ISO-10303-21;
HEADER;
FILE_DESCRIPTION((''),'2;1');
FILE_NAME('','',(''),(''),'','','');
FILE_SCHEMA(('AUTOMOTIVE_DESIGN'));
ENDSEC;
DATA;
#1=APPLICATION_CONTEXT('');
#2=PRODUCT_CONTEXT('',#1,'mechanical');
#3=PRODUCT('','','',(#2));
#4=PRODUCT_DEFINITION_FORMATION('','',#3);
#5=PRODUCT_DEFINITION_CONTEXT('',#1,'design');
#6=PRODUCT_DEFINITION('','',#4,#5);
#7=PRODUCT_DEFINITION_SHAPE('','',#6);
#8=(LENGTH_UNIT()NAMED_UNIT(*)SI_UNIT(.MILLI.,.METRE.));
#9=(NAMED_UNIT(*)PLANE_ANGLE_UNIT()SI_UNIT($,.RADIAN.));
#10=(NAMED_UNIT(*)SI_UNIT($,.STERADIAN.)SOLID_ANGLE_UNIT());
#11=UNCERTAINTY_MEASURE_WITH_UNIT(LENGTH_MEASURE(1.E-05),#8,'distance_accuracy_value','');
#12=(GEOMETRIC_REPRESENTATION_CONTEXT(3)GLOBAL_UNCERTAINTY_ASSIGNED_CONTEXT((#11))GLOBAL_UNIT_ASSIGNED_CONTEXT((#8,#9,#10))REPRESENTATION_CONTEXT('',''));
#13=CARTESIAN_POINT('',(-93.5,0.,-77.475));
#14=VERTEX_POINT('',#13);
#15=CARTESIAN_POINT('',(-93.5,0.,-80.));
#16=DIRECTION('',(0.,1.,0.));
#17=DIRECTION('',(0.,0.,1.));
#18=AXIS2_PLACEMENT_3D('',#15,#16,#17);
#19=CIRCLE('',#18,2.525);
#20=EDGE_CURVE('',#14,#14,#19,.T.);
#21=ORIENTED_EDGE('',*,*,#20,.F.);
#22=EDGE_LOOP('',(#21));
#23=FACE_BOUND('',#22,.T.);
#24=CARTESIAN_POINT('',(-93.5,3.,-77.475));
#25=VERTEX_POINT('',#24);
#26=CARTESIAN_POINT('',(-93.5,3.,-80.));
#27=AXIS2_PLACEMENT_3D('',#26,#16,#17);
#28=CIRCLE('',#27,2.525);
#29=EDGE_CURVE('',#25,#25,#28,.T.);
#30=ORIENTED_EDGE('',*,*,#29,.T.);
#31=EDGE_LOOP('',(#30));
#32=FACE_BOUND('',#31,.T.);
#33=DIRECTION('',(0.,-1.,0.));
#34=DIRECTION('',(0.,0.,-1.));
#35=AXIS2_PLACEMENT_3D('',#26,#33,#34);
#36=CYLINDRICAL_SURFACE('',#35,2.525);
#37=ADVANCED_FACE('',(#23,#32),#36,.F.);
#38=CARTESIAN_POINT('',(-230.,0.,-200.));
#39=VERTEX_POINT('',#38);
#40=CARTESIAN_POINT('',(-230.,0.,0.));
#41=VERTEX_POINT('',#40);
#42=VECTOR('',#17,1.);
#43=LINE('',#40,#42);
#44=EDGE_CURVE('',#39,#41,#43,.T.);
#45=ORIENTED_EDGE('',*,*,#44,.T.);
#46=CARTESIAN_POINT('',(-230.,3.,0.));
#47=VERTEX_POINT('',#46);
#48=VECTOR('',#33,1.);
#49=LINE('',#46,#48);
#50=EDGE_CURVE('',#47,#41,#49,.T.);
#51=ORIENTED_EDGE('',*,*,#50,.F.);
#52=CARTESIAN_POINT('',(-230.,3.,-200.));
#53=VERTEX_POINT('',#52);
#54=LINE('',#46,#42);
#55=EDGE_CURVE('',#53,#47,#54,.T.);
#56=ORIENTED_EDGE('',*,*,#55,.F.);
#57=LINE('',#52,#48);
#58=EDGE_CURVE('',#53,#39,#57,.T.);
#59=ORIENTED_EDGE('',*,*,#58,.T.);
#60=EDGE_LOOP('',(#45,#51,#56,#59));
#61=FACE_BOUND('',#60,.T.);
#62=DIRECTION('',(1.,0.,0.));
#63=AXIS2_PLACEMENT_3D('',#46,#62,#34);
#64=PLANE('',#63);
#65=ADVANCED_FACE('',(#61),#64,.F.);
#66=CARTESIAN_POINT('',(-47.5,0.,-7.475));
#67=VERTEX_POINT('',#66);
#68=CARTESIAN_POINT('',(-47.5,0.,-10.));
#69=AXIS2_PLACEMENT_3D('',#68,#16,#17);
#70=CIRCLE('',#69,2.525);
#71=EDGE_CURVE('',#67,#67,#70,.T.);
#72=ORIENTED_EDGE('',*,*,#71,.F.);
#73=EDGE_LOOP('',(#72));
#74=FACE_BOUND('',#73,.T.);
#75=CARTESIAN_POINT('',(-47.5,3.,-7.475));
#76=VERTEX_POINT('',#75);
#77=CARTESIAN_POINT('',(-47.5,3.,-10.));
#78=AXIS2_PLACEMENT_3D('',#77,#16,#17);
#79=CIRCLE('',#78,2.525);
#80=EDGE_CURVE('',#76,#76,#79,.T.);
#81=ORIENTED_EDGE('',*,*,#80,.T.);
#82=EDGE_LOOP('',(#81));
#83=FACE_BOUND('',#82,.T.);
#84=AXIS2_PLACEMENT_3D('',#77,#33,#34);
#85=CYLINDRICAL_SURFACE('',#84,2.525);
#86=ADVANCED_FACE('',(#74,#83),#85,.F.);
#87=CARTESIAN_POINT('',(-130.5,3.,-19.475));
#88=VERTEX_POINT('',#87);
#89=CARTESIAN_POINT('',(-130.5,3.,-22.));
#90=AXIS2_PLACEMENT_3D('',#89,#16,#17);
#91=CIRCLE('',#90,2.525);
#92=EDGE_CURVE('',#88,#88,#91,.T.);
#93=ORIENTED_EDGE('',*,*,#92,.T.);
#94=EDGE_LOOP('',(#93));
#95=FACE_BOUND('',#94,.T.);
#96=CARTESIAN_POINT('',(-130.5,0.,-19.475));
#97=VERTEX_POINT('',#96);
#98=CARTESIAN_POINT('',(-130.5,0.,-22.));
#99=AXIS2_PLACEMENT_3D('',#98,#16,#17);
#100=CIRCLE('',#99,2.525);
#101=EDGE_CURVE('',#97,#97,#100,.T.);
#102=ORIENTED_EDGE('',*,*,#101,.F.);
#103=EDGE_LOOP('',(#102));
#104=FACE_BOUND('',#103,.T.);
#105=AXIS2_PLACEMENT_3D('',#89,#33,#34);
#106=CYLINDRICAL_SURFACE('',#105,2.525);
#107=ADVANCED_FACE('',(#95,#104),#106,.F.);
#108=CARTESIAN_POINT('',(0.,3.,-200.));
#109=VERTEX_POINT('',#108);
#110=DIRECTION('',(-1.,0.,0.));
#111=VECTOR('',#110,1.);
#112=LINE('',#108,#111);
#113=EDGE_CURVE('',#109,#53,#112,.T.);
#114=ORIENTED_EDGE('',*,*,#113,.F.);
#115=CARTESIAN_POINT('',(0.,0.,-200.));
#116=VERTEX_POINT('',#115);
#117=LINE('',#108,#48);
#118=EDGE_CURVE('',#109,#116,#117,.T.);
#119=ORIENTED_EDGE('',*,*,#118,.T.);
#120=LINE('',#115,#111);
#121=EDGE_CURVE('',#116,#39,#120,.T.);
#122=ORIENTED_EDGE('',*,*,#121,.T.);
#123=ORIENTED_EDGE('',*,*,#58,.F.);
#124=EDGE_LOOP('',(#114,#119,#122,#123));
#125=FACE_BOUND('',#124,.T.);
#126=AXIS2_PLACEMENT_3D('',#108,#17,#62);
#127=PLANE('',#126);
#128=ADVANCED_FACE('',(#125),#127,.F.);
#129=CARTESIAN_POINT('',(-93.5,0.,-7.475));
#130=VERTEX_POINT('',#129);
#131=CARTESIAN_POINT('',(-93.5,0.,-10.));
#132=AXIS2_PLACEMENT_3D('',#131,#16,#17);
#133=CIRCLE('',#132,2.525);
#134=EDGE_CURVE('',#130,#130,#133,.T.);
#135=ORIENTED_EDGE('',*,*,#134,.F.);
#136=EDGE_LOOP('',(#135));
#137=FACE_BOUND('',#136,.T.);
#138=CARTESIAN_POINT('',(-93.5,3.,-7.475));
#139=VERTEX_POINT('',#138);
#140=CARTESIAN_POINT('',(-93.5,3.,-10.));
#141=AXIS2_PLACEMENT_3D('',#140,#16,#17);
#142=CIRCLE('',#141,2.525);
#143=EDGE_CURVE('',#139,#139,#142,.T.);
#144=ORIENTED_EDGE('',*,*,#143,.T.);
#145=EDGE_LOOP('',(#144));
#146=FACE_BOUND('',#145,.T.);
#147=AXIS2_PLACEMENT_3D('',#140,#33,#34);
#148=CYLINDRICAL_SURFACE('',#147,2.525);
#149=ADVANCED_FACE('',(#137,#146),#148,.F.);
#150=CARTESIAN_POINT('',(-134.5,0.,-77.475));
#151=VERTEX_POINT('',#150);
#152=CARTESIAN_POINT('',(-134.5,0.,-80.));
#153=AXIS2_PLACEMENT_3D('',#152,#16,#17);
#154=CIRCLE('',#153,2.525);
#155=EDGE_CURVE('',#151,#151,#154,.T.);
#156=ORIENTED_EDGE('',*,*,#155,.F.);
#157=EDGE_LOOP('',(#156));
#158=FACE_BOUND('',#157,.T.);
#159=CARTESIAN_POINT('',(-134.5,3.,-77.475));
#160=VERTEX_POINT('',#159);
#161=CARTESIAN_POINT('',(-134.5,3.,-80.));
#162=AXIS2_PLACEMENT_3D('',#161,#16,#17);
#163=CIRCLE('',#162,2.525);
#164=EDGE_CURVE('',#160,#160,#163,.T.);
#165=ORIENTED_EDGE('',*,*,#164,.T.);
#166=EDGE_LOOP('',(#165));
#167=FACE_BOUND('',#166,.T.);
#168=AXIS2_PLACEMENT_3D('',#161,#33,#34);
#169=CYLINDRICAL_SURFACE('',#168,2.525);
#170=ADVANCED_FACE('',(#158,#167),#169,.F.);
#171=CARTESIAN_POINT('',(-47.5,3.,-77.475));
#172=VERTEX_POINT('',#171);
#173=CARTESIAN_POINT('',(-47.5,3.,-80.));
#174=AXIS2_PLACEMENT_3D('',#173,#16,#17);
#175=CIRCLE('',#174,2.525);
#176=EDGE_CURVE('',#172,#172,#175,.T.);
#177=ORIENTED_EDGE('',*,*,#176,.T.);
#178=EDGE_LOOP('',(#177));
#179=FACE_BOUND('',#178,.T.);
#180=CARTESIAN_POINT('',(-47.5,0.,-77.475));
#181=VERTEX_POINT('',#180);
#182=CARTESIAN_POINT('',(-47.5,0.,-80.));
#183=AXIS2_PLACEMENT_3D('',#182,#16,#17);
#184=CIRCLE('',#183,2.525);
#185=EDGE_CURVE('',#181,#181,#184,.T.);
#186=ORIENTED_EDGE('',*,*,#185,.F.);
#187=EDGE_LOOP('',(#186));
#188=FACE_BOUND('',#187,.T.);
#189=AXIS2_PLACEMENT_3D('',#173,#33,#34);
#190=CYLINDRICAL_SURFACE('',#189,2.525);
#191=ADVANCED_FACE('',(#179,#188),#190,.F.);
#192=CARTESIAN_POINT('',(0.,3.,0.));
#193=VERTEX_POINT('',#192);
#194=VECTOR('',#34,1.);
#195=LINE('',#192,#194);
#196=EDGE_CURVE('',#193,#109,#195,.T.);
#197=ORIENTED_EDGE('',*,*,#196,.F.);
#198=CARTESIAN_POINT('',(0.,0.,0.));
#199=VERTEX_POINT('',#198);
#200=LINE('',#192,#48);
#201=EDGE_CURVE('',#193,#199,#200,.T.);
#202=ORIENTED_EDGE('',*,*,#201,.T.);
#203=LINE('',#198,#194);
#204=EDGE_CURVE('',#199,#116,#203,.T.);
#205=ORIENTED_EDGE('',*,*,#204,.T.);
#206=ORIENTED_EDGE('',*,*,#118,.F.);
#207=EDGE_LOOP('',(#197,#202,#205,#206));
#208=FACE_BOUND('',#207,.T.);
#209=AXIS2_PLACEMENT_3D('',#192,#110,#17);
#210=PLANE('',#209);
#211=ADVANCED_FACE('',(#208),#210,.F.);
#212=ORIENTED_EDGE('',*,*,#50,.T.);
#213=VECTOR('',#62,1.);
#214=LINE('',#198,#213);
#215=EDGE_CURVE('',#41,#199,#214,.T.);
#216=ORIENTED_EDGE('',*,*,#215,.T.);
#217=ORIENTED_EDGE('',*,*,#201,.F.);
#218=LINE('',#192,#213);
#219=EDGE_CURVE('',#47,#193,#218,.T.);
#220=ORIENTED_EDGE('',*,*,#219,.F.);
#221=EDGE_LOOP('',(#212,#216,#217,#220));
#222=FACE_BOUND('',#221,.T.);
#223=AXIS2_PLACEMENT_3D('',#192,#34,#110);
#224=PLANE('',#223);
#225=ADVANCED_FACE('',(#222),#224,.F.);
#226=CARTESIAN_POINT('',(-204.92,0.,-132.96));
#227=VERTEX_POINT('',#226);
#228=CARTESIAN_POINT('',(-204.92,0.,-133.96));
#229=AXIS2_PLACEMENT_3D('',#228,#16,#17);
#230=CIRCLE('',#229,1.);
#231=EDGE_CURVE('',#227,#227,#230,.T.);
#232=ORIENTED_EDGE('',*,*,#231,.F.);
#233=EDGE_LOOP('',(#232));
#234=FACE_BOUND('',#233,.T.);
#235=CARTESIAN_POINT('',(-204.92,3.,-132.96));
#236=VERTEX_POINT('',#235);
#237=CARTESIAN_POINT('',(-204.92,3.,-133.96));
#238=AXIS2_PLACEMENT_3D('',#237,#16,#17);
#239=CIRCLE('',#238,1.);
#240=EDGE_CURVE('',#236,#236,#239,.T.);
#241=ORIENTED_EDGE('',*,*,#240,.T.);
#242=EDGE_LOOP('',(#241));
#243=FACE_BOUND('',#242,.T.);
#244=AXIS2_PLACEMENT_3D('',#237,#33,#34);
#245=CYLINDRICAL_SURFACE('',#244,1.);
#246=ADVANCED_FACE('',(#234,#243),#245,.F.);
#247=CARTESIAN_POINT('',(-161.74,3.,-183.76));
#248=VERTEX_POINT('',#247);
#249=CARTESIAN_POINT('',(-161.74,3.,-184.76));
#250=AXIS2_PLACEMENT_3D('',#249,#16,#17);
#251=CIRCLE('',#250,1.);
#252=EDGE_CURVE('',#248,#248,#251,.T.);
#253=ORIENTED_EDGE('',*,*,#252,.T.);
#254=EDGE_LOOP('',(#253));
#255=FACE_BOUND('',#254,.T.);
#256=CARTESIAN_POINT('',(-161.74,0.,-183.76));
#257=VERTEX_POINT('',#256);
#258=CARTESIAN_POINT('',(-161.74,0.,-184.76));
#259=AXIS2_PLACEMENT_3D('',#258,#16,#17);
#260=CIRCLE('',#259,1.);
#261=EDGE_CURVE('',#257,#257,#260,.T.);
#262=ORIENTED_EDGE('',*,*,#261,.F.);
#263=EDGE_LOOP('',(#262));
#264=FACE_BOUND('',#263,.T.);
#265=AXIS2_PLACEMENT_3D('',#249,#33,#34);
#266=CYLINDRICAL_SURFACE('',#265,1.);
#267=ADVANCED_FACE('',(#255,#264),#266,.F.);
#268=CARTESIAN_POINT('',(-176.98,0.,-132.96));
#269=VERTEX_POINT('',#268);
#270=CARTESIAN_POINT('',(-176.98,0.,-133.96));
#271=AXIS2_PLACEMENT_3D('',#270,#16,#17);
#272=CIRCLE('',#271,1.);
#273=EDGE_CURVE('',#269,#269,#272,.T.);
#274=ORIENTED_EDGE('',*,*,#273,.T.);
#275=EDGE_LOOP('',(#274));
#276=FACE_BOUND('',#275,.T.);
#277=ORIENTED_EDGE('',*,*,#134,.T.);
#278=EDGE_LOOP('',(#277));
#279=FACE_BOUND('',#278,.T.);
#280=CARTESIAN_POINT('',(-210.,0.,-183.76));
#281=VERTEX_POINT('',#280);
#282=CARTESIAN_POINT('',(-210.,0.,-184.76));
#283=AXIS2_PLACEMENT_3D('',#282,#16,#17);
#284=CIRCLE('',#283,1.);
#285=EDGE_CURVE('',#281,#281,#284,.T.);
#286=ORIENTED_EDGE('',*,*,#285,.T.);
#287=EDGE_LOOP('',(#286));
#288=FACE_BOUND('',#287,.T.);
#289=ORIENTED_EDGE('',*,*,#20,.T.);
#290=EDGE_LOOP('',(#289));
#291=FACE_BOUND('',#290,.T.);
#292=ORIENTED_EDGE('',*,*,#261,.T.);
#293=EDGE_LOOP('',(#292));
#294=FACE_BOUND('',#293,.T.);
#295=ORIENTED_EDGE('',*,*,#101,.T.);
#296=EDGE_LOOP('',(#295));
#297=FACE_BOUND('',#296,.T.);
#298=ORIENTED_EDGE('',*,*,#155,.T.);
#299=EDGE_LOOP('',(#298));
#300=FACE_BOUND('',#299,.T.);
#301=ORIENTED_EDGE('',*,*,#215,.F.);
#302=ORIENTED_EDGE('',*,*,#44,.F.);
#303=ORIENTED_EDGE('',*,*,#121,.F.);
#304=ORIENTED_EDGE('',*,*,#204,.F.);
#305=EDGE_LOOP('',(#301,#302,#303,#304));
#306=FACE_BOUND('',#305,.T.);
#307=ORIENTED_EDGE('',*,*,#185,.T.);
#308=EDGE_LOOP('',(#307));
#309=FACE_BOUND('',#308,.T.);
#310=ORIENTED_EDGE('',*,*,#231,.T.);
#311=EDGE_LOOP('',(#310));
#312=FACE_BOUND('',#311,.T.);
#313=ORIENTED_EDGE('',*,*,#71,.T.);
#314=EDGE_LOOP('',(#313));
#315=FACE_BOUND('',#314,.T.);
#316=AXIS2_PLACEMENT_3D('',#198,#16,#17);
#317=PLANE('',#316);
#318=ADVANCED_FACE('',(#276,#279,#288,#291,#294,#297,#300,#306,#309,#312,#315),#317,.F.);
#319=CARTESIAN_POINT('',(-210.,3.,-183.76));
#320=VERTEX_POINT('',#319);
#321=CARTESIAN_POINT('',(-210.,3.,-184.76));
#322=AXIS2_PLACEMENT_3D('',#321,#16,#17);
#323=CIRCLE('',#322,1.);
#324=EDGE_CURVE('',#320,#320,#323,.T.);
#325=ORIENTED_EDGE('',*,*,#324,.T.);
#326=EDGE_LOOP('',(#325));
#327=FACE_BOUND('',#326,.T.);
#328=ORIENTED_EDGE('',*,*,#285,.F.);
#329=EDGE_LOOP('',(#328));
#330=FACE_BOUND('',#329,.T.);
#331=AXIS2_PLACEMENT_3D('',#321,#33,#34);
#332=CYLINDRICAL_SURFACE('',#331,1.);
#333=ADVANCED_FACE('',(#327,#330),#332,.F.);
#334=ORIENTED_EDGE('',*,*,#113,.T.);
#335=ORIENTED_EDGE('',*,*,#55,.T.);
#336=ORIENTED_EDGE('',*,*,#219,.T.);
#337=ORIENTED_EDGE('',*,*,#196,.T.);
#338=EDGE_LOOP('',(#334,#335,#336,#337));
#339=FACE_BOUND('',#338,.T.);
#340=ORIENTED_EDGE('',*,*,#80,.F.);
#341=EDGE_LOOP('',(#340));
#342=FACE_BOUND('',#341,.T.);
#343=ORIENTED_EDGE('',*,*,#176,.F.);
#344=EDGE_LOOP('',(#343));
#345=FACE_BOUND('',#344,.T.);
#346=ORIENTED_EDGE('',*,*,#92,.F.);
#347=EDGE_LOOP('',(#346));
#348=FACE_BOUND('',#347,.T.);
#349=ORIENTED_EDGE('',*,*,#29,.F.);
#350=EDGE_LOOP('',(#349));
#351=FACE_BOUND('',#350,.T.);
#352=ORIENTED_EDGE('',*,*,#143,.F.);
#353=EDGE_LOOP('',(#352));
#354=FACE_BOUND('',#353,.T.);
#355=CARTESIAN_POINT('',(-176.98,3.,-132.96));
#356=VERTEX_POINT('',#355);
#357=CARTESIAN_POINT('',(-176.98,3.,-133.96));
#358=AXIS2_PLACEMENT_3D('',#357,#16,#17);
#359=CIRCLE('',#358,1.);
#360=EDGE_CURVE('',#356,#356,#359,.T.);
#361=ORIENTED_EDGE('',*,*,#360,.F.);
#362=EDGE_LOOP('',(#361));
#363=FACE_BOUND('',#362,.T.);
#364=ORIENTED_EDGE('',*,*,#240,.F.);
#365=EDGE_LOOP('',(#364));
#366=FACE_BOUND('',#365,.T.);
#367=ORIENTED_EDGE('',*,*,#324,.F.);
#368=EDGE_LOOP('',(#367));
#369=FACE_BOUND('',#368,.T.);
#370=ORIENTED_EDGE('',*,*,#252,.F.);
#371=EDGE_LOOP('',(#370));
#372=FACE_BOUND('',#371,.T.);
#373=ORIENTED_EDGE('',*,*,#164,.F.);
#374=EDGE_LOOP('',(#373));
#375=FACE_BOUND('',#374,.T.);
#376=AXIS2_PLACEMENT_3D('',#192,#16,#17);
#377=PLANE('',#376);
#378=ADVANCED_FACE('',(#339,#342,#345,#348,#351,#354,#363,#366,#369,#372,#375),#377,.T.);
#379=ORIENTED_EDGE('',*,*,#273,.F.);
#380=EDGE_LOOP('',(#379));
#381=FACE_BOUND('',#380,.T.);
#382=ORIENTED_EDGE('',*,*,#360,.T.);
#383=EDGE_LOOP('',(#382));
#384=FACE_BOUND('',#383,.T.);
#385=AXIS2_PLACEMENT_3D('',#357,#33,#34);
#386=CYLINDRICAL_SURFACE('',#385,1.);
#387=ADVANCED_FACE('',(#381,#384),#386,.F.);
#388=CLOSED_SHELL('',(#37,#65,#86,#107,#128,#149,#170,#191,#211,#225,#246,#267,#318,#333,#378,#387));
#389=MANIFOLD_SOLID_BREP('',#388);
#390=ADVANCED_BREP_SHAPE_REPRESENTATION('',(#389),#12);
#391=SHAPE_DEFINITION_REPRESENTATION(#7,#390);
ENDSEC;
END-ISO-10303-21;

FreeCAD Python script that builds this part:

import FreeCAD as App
import Part
import Sketcher
from FreeCAD import Vector


def add_polygon(sketch, points):
    """Adds a closed chain of lines whose ends are joined by coincident constraints."""
    first, n = sketch.GeometryCount, len(points)
    for a, b in zip(points, points[1:] + points[:1]):
        sketch.addGeometry(Part.LineSegment(App.Vector(*a, 0), App.Vector(*b, 0)), False)
    for i in range(n):
        sketch.addConstraint(Sketcher.Constraint("Coincident", first + i, 2, first + (i + 1) % n, 1))

doc = App.newDocument("Part")
body = doc.addObject("PartDesign::Body", "Body")

sketch1 = body.newObject("Sketcher::SketchObject", "Sketch")
sketch1.AttachmentSupport = (doc.getObject("XZ_Plane"), [""])
sketch1.MapMode = "FlatFace"
add_polygon(sketch1, [(-230, -200), (-230, 0), (0, 0), (0, -200)])
sketch1.addGeometry(Part.Circle(Vector(-130.5, -22, 0), Vector(0, 0, 1), 2.5), False)
sketch1.addGeometry(Part.Circle(Vector(-134.5, -80, 0), Vector(0, 0, 1), 2.5), False)
sketch1.addGeometry(Part.Circle(Vector(-93.5, -10, 0), Vector(0, 0, 1), 2.5), False)
sketch1.addGeometry(Part.Circle(Vector(-47.5, -10, 0), Vector(0, 0, 1), 2.5), False)
sketch1.addGeometry(Part.Circle(Vector(-93.5, -80, 0), Vector(0, 0, 1), 2.5), False)
sketch1.addGeometry(Part.Circle(Vector(-47.5, -80, 0), Vector(0, 0, 1), 2.5), False)
sketch1.addGeometry(Part.Circle(Vector(-204.9, -134, 0), Vector(0, 0, 1), 1), False)
sketch1.addGeometry(Part.Circle(Vector(-177, -134, 0), Vector(0, 0, 1), 1), False)
sketch1.addGeometry(Part.Circle(Vector(-210, -184.8, 0), Vector(0, 0, 1), 1), False)
sketch1.addGeometry(Part.Circle(Vector(-161.7, -184.8, 0), Vector(0, 0, 1), 1), False)
sketch1.addConstraint([
    Sketcher.Constraint("Vertical", 0),
    Sketcher.Constraint("Horizontal", 1),
    Sketcher.Constraint("Vertical", 2),
    Sketcher.Constraint("Horizontal", 3),
    Sketcher.Constraint("Coincident", 1, 2, -1, 1),
    Sketcher.Constraint("Equal", 4, 5),
    Sketcher.Constraint("Equal", 5, 6),
    Sketcher.Constraint("Equal", 6, 7),
    Sketcher.Constraint("Equal", 7, 8),
    Sketcher.Constraint("Equal", 8, 9),
    Sketcher.Constraint("Equal", 10, 11),
    Sketcher.Constraint("Equal", 11, 12),
    Sketcher.Constraint("Equal", 12, 13),
    Sketcher.Constraint("Horizontal", 6, 3, 7, 3),
    Sketcher.Constraint("Horizontal", 5, 3, 8, 3),
    Sketcher.Constraint("Horizontal", 8, 3, 9, 3),
    Sketcher.Constraint("Horizontal", 10, 3, 11, 3),
    Sketcher.Constraint("Horizontal", 12, 3, 13, 3),
    Sketcher.Constraint("Vertical", 6, 3, 8, 3),
    Sketcher.Constraint("Vertical", 7, 3, 9, 3),
    Sketcher.Constraint("Diameter", 10, 2.0),
    Sketcher.Constraint("Diameter", 4, 5.05),
    Sketcher.Constraint("DistanceX", 1, 1, 1, 2, 230.0),
    Sketcher.Constraint("DistanceY", 0, 1, 0, 2, 200.0),
    Sketcher.Constraint("DistanceY", 4, 3, -1, 1, 22.0),
    Sketcher.Constraint("DistanceY", 5, 3, -1, 1, 80.0),
    Sketcher.Constraint("DistanceY", 6, 3, -1, 1, 10.0),
    Sketcher.Constraint("DistanceX", 12, 3, -1, 1, 210.0),
    Sketcher.Constraint("DistanceX", 5, 3, 4, 3, 4.0),
    Sketcher.Constraint("DistanceX", 4, 3, 6, 3, 37.0),
    Sketcher.Constraint("DistanceX", 6, 3, 7, 3, 46.0),
    Sketcher.Constraint("DistanceX", 4, 3, -1, 1, 130.5),
    Sketcher.Constraint("DistanceY", 12, 3, 10, 3, 50.8),
    Sketcher.Constraint("DistanceX", 10, 3, -1, 1, 204.92),
    Sketcher.Constraint("DistanceY", 10, 3, -1, 1, 133.96),
    Sketcher.Constraint("DistanceX", 11, 3, -1, 1, 176.98),
    Sketcher.Constraint("DistanceX", 13, 3, -1, 1, 161.74),
])
pad1 = body.newObject("PartDesign::Pad", "Pad")
pad1.Profile = sketch1
pad1.Length = 3
pad1.Reversed = True

doc.recompute()
